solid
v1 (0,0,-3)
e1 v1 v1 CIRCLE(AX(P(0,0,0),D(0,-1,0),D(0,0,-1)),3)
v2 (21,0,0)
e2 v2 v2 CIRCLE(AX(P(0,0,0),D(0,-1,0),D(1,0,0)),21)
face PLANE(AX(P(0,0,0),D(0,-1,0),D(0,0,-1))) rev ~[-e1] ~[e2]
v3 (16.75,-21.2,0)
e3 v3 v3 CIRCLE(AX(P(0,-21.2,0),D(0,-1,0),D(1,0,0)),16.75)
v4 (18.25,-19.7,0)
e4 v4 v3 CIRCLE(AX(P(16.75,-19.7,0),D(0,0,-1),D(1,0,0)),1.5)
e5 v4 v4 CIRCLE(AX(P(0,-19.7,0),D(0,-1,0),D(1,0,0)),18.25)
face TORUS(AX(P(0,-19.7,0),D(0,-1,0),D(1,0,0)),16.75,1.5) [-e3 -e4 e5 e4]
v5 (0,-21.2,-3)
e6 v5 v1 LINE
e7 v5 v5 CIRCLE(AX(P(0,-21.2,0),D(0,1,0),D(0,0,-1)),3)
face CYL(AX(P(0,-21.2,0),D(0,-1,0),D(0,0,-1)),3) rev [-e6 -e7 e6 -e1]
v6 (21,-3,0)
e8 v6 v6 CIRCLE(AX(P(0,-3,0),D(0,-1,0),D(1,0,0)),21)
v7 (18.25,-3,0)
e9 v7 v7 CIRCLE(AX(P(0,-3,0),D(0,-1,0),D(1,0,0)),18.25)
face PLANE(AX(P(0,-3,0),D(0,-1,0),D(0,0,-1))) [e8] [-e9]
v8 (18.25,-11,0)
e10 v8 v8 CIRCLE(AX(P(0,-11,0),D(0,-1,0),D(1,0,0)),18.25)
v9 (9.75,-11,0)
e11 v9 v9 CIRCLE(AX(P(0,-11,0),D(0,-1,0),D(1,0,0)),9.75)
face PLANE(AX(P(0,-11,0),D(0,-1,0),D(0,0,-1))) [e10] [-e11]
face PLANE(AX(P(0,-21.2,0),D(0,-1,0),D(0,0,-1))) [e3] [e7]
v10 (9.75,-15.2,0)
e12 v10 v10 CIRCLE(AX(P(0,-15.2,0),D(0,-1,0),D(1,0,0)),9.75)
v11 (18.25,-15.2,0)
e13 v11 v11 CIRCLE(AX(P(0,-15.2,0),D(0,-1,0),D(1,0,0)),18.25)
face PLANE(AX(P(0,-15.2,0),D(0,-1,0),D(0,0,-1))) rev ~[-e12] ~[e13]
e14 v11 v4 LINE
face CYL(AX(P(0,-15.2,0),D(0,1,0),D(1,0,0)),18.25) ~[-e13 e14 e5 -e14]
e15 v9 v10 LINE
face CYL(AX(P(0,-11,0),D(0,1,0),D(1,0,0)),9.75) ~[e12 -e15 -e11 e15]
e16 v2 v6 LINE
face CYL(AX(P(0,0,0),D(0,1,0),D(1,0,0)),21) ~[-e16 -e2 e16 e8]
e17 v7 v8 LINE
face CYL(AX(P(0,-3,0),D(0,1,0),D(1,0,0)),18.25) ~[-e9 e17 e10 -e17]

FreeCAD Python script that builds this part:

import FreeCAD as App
import Part
import Sketcher

V = App.Vector


def edges_at(feature, points):
    """Names of the edges that pass closest to the given points."""
    edges = feature.Shape.Edges
    near = lambda p: min(range(len(edges)), key=lambda i: edges[i].distToShape(Part.Vertex(*p))[0])
    return sorted({f"Edge{near(p) + 1}" for p in points})

doc = App.newDocument("Part")
body = doc.addObject("PartDesign::Body", "Body")

# Sketch on XZ plane
sketch1 = body.newObject("Sketcher::SketchObject", "Sketch")
sketch1.AttachmentSupport = (doc.getObject("XZ_Plane"), [""])
sketch1.MapMode = "FlatFace"
sketch1.addGeometry(Part.Circle(V(0, 0, 0), V(0, 0, 1), 21), False)
sketch1.addConstraint([
    Sketcher.Constraint("Coincident", 0, 3, -1, 1),
    Sketcher.Constraint("Diameter", 0, 42.0),
])
pad1 = body.newObject("PartDesign::Pad", "Pad")
pad1.Profile = sketch1
pad1.Length = 3

# Sketch on XZ plane
sketch2 = body.newObject("Sketcher::SketchObject", "Sketch001")
sketch2.AttachmentSupport = (doc.getObject("XZ_Plane"), [""])
sketch2.MapMode = "FlatFace"
sketch2.AttachmentOffset = App.Placement(V(0, 0, 3), App.Rotation())
sketch2.addGeometry(Part.Circle(V(0, 0, 0), V(0, 0, 1), 18), False)
sketch2.addConstraint([
    Sketcher.Constraint("Coincident", 0, 3, -1, 1),
    Sketcher.Constraint("Diameter", 0, 36.5),
])
pad2 = body.newObject("PartDesign::Pad", "Pad001")
pad2.Profile = sketch2
pad2.Length = 8

# Sketch on XZ plane
sketch3 = body.newObject("Sketcher::SketchObject", "Sketch002")
sketch3.AttachmentSupport = (doc.getObject("XZ_Plane"), [""])
sketch3.MapMode = "FlatFace"
sketch3.AttachmentOffset = App.Placement(V(0, 0, 11), App.Rotation())
sketch3.addGeometry(Part.Circle(V(0, 0, 0), V(0, 0, 1), 10), False)
sketch3.addConstraint([
    Sketcher.Constraint("Coincident", 0, 3, -1, 1),
    Sketcher.Constraint("Diameter", 0, 19.5),
])
pad3 = body.newObject("PartDesign::Pad", "Pad002")
pad3.Profile = sketch3
pad3.Length = 4.2

# Sketch on XZ plane
sketch4 = body.newObject("Sketcher::SketchObject", "Sketch003")
sketch4.AttachmentSupport = (doc.getObject("XZ_Plane"), [""])
sketch4.MapMode = "FlatFace"
sketch4.AttachmentOffset = App.Placement(V(0, 0, 15.2), App.Rotation())
sketch4.addGeometry(Part.Circle(V(0, 0, 0), V(0, 0, 1), 18), False)
sketch4.addConstraint([
    Sketcher.Constraint("Coincident", 0, 3, -1, 1),
    Sketcher.Constraint("Diameter", 0, 36.5),
])
pad4 = body.newObject("PartDesign::Pad", "Pad003")
pad4.Profile = sketch4
pad4.Length = 6
doc.recompute()

fillet = body.newObject("PartDesign::Fillet", "Fillet")
fillet.Base = (pad4, edges_at(pad4, [(-18.25, -21.2, 0)]))
fillet.Radius = 1.5

# Sketch on XZ plane
sketch5 = body.newObject("Sketcher::SketchObject", "Sketch004")
sketch5.AttachmentSupport = (doc.getObject("XZ_Plane"), [""])
sketch5.MapMode = "FlatFace"
sketch5.AttachmentOffset = App.Placement(V(0, 0, 21.2), App.Rotation())
sketch5.addGeometry(Part.Circle(V(0, 0, 0), V(0, 0, 1), 3), False)
sketch5.addConstraint([
    Sketcher.Constraint("Coincident", 0, 3, -1, 1),
    Sketcher.Constraint("Diameter", 0, 6.0),
])
doc.recompute()
hole = body.newObject("PartDesign::Hole", "Hole")
hole.Profile = sketch5
hole.ThreadType = "None"
hole.Diameter = 6
hole.DepthType = "ThroughAll"

doc.recompute()
